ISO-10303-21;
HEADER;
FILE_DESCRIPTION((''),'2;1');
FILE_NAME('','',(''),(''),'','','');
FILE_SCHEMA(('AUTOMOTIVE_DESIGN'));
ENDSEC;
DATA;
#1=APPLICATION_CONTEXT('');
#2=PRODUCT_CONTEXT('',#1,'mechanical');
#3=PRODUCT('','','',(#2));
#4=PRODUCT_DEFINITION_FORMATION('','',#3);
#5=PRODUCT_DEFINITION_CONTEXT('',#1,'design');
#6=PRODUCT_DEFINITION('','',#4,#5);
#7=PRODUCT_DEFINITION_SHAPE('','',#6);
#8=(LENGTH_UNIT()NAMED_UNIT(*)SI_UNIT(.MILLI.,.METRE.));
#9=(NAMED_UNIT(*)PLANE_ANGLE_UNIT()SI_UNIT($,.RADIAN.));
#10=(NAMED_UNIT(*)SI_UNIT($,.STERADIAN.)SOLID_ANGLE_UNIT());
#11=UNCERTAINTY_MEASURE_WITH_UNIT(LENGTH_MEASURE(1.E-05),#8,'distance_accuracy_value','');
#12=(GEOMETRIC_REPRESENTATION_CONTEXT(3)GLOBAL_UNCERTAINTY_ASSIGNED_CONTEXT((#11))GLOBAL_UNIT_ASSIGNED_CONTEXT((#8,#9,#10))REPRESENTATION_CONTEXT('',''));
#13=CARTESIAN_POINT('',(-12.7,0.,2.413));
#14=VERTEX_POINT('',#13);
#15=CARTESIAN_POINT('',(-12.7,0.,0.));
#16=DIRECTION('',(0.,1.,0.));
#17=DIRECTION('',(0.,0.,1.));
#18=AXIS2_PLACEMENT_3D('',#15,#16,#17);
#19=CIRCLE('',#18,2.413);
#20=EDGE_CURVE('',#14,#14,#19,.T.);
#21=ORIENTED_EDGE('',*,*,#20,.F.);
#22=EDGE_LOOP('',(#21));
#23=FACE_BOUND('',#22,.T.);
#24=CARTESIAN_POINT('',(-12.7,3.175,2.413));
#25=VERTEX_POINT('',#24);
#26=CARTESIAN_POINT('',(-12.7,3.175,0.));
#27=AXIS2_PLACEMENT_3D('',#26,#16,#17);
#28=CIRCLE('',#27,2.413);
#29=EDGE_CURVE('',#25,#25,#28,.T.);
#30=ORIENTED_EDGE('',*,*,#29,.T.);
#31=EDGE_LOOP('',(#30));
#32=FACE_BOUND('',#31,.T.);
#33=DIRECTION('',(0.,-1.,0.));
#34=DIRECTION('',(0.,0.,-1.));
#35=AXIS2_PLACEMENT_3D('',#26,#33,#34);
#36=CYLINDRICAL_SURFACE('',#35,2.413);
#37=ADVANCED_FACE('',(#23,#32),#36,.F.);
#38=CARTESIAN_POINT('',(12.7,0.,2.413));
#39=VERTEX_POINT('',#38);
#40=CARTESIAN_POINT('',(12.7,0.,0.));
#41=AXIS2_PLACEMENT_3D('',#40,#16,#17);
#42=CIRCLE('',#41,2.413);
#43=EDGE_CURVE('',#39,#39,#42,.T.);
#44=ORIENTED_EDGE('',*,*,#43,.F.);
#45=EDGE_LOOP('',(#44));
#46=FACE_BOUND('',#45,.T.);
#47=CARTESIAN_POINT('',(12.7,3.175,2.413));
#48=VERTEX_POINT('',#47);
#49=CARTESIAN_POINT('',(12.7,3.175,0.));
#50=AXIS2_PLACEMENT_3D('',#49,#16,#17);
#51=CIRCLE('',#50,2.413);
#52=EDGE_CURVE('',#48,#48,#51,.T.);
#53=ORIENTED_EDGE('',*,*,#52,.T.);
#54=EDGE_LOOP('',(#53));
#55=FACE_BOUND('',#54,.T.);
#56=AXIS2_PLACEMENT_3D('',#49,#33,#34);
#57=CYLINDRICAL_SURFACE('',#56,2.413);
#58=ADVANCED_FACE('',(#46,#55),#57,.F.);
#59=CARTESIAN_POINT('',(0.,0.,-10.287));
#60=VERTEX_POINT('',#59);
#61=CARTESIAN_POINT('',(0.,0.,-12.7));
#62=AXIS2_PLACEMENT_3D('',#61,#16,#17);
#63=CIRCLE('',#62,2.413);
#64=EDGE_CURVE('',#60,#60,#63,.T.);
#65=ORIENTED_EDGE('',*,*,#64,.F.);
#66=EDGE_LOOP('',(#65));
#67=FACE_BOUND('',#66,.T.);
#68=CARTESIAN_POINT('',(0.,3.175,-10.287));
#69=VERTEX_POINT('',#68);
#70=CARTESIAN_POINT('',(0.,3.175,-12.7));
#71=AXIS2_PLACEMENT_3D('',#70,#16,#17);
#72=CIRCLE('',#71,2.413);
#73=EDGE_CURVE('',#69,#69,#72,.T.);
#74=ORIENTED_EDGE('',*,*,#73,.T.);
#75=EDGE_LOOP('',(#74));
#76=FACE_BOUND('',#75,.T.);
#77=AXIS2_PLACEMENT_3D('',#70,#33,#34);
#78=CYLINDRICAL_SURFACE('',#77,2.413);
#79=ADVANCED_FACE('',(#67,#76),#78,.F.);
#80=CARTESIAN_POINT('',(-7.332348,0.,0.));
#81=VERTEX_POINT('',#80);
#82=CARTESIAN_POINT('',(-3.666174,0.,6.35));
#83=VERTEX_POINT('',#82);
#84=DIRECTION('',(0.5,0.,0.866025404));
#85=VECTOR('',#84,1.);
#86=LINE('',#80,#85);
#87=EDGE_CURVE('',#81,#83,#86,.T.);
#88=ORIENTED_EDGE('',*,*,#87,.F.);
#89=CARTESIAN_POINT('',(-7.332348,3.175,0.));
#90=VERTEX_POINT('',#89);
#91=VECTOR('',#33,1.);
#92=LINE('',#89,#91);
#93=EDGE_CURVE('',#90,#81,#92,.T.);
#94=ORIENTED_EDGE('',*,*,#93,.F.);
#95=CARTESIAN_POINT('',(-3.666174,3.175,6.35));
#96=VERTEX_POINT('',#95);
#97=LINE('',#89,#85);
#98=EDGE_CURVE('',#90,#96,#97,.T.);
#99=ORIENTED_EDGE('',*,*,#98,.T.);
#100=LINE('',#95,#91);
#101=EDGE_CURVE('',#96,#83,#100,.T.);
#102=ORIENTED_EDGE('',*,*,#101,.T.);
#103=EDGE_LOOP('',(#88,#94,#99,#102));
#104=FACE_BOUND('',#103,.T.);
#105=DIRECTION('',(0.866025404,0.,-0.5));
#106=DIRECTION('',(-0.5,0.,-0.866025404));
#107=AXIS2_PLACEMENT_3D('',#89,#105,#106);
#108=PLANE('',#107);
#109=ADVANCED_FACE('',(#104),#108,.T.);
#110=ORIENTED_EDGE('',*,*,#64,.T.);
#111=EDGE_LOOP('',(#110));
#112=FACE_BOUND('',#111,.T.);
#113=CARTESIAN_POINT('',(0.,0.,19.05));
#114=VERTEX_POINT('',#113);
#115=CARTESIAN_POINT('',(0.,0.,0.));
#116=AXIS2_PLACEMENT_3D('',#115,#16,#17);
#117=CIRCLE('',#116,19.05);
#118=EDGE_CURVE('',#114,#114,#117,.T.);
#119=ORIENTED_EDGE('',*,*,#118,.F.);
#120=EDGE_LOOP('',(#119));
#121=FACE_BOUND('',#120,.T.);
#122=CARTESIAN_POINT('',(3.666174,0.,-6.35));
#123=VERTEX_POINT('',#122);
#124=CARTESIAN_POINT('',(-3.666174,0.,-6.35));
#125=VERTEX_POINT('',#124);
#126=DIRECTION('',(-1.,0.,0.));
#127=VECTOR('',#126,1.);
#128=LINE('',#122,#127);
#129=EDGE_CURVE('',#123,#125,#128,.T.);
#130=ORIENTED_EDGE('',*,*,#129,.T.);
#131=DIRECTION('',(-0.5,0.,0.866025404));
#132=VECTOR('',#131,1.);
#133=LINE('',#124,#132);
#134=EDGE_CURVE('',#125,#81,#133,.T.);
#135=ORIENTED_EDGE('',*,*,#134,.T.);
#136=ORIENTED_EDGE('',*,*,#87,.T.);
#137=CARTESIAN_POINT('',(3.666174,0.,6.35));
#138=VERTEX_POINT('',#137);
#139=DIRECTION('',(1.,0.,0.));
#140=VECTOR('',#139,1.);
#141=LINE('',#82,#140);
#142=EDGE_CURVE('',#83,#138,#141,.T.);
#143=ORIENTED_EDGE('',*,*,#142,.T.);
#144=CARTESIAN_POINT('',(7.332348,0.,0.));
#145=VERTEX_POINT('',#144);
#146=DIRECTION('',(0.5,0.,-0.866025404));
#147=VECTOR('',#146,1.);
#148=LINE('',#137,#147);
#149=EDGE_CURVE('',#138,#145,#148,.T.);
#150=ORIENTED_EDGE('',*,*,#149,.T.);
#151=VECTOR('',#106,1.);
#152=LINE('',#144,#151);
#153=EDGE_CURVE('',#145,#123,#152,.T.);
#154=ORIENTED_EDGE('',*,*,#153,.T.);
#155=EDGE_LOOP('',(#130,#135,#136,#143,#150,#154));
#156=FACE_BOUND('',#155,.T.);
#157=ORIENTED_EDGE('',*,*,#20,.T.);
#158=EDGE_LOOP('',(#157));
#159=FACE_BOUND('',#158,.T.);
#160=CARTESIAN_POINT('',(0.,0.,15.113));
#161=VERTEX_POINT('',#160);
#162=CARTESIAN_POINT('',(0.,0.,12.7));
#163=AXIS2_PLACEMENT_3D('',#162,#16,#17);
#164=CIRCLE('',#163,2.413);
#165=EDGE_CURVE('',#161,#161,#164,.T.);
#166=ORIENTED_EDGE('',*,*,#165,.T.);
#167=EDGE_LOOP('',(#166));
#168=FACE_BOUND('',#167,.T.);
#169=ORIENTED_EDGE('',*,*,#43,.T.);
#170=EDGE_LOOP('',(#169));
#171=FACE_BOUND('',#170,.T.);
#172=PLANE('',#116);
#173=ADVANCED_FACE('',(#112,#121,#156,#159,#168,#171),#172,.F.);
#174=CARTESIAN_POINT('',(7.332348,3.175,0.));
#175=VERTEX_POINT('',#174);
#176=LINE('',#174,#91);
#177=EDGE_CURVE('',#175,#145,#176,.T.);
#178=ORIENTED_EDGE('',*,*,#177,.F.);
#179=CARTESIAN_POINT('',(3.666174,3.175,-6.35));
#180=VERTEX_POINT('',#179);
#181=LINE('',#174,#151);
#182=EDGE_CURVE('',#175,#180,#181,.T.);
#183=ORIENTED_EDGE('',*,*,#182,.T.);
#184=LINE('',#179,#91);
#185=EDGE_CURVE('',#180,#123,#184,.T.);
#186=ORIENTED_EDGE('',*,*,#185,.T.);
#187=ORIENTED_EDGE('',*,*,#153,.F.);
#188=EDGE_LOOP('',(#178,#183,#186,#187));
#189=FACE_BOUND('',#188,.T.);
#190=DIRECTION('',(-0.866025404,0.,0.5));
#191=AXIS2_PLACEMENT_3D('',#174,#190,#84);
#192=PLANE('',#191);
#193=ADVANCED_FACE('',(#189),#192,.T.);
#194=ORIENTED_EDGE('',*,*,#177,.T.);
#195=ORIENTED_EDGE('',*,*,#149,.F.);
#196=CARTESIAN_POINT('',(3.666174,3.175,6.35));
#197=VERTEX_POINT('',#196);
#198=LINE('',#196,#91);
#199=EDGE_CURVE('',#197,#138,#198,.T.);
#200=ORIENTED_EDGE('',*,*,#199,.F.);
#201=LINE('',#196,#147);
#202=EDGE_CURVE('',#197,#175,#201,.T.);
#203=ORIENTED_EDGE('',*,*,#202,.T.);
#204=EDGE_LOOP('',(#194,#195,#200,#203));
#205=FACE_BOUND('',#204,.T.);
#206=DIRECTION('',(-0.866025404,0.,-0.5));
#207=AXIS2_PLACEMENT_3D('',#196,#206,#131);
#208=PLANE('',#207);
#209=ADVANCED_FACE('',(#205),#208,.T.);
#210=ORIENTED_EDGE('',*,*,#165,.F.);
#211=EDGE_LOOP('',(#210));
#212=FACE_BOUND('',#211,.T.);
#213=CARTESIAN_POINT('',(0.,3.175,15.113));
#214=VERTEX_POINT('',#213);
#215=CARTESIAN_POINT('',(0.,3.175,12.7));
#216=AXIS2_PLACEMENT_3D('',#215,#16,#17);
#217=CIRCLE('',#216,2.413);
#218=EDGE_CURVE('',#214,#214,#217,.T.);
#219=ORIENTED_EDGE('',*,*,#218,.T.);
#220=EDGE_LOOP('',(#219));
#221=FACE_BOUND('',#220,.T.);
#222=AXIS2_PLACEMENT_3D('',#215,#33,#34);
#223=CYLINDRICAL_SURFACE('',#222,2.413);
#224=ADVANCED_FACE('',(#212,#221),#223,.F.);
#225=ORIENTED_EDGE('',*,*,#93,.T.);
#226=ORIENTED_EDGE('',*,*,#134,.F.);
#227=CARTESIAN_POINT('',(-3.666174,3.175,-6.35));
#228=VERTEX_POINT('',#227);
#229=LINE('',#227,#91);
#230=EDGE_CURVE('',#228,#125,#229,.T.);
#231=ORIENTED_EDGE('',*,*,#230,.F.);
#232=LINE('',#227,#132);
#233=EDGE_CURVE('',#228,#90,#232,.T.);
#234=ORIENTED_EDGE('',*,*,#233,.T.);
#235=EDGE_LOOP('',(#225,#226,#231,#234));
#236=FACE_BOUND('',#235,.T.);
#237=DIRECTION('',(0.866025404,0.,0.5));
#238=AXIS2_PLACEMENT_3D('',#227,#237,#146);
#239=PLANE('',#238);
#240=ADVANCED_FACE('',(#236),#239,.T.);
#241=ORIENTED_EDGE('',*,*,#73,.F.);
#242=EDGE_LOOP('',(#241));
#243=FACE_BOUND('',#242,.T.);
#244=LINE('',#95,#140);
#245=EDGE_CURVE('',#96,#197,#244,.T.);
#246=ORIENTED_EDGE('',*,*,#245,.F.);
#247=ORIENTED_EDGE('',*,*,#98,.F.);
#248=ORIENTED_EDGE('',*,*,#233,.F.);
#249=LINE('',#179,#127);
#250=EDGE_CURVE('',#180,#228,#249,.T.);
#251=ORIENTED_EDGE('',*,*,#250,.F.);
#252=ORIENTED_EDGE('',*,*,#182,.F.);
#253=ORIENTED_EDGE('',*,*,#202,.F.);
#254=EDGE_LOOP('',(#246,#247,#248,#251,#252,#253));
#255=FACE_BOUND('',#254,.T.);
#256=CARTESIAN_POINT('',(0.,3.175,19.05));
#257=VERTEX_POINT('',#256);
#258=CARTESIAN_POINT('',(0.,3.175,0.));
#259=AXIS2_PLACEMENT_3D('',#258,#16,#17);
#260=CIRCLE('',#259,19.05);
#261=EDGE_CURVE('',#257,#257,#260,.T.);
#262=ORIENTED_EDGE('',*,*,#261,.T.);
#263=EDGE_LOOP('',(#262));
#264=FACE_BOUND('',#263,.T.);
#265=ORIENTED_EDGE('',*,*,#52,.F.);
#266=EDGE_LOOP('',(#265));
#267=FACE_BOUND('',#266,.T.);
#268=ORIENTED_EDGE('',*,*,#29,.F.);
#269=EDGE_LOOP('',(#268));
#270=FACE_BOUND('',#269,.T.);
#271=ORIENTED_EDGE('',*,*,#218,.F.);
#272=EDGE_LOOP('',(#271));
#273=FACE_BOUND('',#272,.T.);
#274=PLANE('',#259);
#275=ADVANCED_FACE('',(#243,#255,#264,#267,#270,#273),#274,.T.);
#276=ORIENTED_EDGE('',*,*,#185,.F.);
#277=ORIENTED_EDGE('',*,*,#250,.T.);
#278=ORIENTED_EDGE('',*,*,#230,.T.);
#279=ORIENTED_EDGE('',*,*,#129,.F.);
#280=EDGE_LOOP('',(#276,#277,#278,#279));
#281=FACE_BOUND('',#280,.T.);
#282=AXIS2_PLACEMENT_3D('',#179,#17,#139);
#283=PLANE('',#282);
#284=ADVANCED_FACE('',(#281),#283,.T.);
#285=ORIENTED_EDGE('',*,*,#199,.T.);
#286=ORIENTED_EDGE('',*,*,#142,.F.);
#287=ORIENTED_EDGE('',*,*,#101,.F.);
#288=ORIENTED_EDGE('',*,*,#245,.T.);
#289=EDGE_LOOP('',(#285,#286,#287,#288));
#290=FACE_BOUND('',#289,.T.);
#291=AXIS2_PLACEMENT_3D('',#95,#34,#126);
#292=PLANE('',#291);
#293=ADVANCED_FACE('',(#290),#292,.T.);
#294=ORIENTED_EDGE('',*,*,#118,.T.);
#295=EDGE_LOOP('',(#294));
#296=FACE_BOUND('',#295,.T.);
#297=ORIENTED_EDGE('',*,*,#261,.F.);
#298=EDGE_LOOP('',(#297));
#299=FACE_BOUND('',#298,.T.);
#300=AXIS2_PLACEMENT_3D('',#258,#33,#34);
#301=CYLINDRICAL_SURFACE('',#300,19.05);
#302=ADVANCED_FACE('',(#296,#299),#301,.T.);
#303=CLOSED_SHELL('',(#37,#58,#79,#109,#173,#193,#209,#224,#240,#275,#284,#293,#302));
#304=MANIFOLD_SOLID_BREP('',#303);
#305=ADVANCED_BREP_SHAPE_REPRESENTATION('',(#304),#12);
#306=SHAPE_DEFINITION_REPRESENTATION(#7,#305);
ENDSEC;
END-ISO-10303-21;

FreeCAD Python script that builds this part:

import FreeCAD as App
import Part
import Sketcher

V = App.Vector
Q = App.Units.Quantity

doc = App.newDocument("Part")
body = doc.addObject("PartDesign::Body", "Body")

# Sketch on XZ plane
sketch1 = body.newObject("Sketcher::SketchObject", "Sketch")
sketch1.AttachmentSupport = (doc.getObject("XZ_Plane"), [""])
sketch1.MapMode = "FlatFace"
sketch1.addGeometry([
    Part.Circle(V(0, 0, 0), V(0, 0, 1), 19.1),  # 0
    Part.Circle(V(0, 12.7, 0), V(0, 0, 1), 2.4),  # 1
    Part.Circle(V(-12.7, 0, 0), V(0, 0, 1), 2.4),  # 2
    Part.LineSegment(V(-3.7, 6.3, 0), V(-7.3, 0, 0)),  # 3
    Part.LineSegment(V(-7.3, 0, 0), V(-3.7, -6.3, 0)),  # 4
    Part.LineSegment(V(-3.7, -6.3, 0), V(3.7, -6.3, 0)),  # 5
    Part.LineSegment(V(3.7, -6.3, 0), V(7.3, 0, 0)),  # 6
    Part.LineSegment(V(7.3, 0, 0), V(3.7, 6.3, 0)),  # 7
    Part.LineSegment(V(3.7, 6.3, 0), V(-3.7, 6.3, 0)),  # 8
    Part.Circle(V(12.7, 0, 0), V(0, 0, 1), 2.4),  # 9
    Part.Circle(V(0, -12.7, 0), V(0, 0, 1), 2.4),  # 10
], False)
sketch1.addConstraint([
    Sketcher.Constraint("Coincident", 3, 2, 4, 1),
    Sketcher.Constraint("Coincident", 4, 2, 5, 1),
    Sketcher.Constraint("Coincident", 5, 2, 6, 1),
    Sketcher.Constraint("Coincident", 6, 2, 7, 1),
    Sketcher.Constraint("Coincident", 7, 2, 8, 1),
    Sketcher.Constraint("Coincident", 8, 2, 3, 1),
    Sketcher.Constraint("Horizontal", 5),
    Sketcher.Constraint("Horizontal", 8),
    Sketcher.Constraint("Coincident", 0, 3, -1, 1),
    Sketcher.Constraint("Equal", 1, 2),
    Sketcher.Constraint("Equal", 2, 9),
    Sketcher.Constraint("Equal", 9, 10),
    Sketcher.Constraint("Symmetric", 2, 3, 9, 3, -1, 1),
    Sketcher.Constraint("Symmetric", 1, 3, 10, 3, -1, 1),
    Sketcher.Constraint("Symmetric", 3, 2, 6, 2, -1, 1),
    Sketcher.Constraint("Symmetric", 4, 2, 7, 2, -1, 1),
    Sketcher.Constraint("PointOnObject", 1, 3, -2),
    Sketcher.Constraint("PointOnObject", 2, 3, -1),
    Sketcher.Constraint("PointOnObject", 3, 2, -1),
    Sketcher.Constraint("Parallel", 3, 6),
    Sketcher.Constraint("Vertical", 5, 2, 7, 2),
    Sketcher.Constraint("Diameter", 0, Q("1.5 in")),
    Sketcher.Constraint("Diameter", 1, Q("0.19 in")),
    Sketcher.Constraint("Angle", 3, Q("-120 deg")),
    Sketcher.Constraint("DistanceX", 2, 3, 9, 3, Q("1 in")),
    Sketcher.Constraint("DistanceY", 10, 3, 1, 3, Q("1 in")),
    Sketcher.Constraint("DistanceY", 4, 2, -1, 1, Q("0.25 in")),
    Sketcher.Constraint("DistanceX", 5, 1, 5, 2, Q("7.332348 mm")),
])
pad1 = body.newObject("PartDesign::Pad", "Pad")
pad1.Profile = sketch1
pad1.Length = Q("0.125 in")
pad1.Reversed = True

doc.recompute()
